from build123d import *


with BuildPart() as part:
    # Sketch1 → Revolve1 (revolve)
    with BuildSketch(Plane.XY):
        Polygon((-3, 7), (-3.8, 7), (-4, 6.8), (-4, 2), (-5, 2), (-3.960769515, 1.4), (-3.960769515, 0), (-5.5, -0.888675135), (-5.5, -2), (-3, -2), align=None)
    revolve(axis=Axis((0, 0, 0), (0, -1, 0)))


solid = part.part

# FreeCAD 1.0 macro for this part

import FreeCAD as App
import Part
import Sketcher

V = App.Vector
Q = App.Units.Quantity


def add_polygon(sketch, points):
    """Adds a closed chain of lines whose ends are joined by coincident constraints."""
    first, n = sketch.GeometryCount, len(points)
    for a, b in zip(points, points[1:] + points[:1]):
        sketch.addGeometry(Part.LineSegment(App.Vector(*a, 0), App.Vector(*b, 0)), False)
    for i in range(n):
        sketch.addConstraint(Sketcher.Constraint("Coincident", first + i, 2, first + (i + 1) % n, 1))

doc = App.newDocument("Part")
body = doc.addObject("PartDesign::Body", "Body")

sketch1 = doc.addObject("Sketcher::SketchObject", "Sketch")
body.addObject(sketch1)
sketch1.AttachmentSupport = (doc.XY_Plane, [""])
sketch1.MapMode = "FlatFace"
add_polygon(sketch1, [(-3, 7), (-3.8, 7), (-4, 6.8), (-4, 2), (-5, 2), (-3.96, 1.4), (-3.96, 0), (-5.5, -0.89), (-5.5, -2), (-3, -2)])
sketch1.addConstraint([
    Sketcher.Constraint("Horizontal", 0),
    Sketcher.Constraint("Vertical", 2),
    Sketcher.Constraint("Horizontal", 3),
    Sketcher.Constraint("Vertical", 5),
    Sketcher.Constraint("Vertical", 7),
    Sketcher.Constraint("Horizontal", 8),
    Sketcher.Constraint("Vertical", 9),
    Sketcher.Constraint("PointOnObject", 5, 2, -1),
    Sketcher.Constraint("DistanceX", 3, 2, 3, 1, 1.0),
    Sketcher.Constraint("DistanceY", 9, 1, 9, 2, 9.0),
    Sketcher.Constraint("Angle", 1, Q("-135 deg")),
    Sketcher.Constraint("Angle", 4, Q("-30 deg")),
    Sketcher.Constraint("Angle", 6, Q("-150 deg")),
    Sketcher.Constraint("DistanceX", 0, 2, 0, 1, 0.8),
    Sketcher.Constraint("DistanceX", 8, 1, 8, 2, 2.5),
    Sketcher.Constraint("DistanceY", 2, 2, 2, 1, 4.8),
    Sketcher.Constraint("DistanceY", 5, 2, 5, 1, 1.4),
    Sketcher.Constraint("DistanceY", -1, 1, 0, 2, 7.0),
    Sketcher.Constraint("DistanceX", 1, 2, -1, 1, 4.0),
    Sketcher.Constraint("DistanceY", -1, 1, 2, 2, 2.0),
])
revolution = doc.addObject("PartDesign::Revolution", "Revolution")
body.addObject(revolution)
revolution.Profile = sketch1
revolution.ReferenceAxis = (sketch1, ["V_Axis"])
revolution.Angle = 360

doc.recompute()
